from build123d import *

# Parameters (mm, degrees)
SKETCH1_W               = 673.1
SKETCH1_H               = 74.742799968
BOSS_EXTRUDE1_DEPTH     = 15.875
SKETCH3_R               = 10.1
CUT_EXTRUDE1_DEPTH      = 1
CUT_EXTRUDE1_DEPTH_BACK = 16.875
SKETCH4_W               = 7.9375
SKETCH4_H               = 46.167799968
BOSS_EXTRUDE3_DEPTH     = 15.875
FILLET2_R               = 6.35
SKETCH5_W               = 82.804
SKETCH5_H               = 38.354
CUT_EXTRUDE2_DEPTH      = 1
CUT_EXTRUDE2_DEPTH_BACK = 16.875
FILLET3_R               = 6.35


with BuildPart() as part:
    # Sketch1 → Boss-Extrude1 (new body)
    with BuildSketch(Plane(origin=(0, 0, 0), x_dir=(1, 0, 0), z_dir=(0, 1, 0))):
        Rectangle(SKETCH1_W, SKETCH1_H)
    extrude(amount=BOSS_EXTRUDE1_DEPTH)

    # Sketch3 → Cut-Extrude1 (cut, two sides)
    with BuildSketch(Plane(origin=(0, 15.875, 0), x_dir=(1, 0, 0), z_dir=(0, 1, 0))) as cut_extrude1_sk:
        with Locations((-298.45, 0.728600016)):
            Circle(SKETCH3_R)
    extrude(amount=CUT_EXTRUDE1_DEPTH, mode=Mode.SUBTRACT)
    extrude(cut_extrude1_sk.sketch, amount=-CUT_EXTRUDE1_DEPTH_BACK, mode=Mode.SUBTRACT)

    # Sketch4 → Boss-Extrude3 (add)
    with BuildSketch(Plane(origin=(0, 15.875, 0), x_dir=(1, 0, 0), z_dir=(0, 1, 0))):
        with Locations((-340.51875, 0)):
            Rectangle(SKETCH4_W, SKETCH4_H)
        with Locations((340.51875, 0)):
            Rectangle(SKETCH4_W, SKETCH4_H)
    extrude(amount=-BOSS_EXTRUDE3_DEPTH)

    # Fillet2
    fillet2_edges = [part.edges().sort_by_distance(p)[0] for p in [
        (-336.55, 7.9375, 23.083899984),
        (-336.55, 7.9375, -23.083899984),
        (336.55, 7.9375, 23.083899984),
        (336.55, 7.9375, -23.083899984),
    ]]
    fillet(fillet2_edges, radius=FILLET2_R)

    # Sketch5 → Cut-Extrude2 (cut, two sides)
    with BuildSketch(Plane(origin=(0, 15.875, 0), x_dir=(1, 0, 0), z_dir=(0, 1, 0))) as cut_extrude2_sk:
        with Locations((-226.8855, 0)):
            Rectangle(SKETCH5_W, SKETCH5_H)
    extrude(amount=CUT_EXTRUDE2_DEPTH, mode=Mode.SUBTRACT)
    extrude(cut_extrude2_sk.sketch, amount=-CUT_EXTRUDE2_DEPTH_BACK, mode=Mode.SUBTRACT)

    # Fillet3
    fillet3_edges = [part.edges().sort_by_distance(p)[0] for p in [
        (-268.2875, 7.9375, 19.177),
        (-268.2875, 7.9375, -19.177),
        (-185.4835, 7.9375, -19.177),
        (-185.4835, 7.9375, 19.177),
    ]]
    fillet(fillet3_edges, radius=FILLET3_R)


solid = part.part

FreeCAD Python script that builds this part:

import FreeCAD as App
import Part
import Sketcher
from FreeCAD import Vector
Q = App.Units.Quantity


def edges_at(feature, points):
    """Names of the edges that pass closest to the given points."""
    edges = feature.Shape.Edges
    near = lambda p: min(range(len(edges)), key=lambda i: edges[i].distToShape(Part.Vertex(*p))[0])
    return sorted({f"Edge{near(p) + 1}" for p in points})

doc = App.newDocument("Part")
params = doc.addObject("Spreadsheet::Sheet", "Params")
for row, (alias, value) in enumerate([
    ("sketch1_width", "26.5 in"),
    ("pad1_length", "0.625 in"),
    ("sketch3_width", "0.3125 in"),
    ("pad2_length", "0.625 in"),
    ("fillet_radius", "0.25 in"),
    ("sketch4_width", "3.26 in"),
    ("sketch4_height", "1.51 in"),
    ("fillet2_radius", "0.25 in"),
], start=1):
    params.set(f"A{row}", alias)
    params.set(f"B{row}", "=" + value)
    params.setAlias(f"B{row}", alias)

body = doc.addObject("PartDesign::Body", "Body")

# Sketch on XZ plane
sketch1 = body.newObject("Sketcher::SketchObject", "Sketch")
sketch1.AttachmentSupport = (doc.getObject("XZ_Plane"), [""])
sketch1.MapMode = "FlatFace"
sketch1.addGeometry([
    Part.LineSegment(Vector(-337, -37, 0), Vector(-337, 37, 0)),
    Part.LineSegment(Vector(-337, 37, 0), Vector(337, 37, 0)),
    Part.LineSegment(Vector(337, 37, 0), Vector(337, -37, 0)),
    Part.LineSegment(Vector(337, -37, 0), Vector(-337, -37, 0)),
], False)
sketch1.addConstraint([
    Sketcher.Constraint("Coincident", 0, 2, 1, 1),
    Sketcher.Constraint("Coincident", 1, 2, 2, 1),
    Sketcher.Constraint("Coincident", 2, 2, 3, 1),
    Sketcher.Constraint("Coincident", 3, 2, 0, 1),
    Sketcher.Constraint("Vertical", 0),
    Sketcher.Constraint("Horizontal", 1),
    Sketcher.Constraint("Vertical", 2),
    Sketcher.Constraint("Horizontal", 3),
    Sketcher.Constraint("Symmetric", 0, 2, 2, 2, -1, 1),
    Sketcher.Constraint("DistanceX", 1, 1, 1, 2, Q("26.5 in")),
    Sketcher.Constraint("DistanceY", 0, 1, 0, 2, Q("74.7428 mm")),
])
sketch1.setExpression("Constraints[9]", "Params.sketch1_width")
pad1 = body.newObject("PartDesign::Pad", "Pad")
pad1.Profile = sketch1
pad1.setExpression("Length", "Params.pad1_length")
pad1.Reversed = True

# Sketch on XZ plane
sketch2 = body.newObject("Sketcher::SketchObject", "Sketch001")
sketch2.AttachmentSupport = (doc.getObject("XZ_Plane"), [""])
sketch2.MapMode = "FlatFace"
sketch2.AttachmentOffset = App.Placement(Vector(0, 0, -0.625 * 25.4), App.Rotation())
sketch2.addGeometry(Part.Circle(Vector(-298, -1, 0), Vector(0, 0, 1), 10), False)
sketch2.addConstraint([
    Sketcher.Constraint("Diameter", 0, Q("20.2 mm")),
    Sketcher.Constraint("DistanceX", 0, 3, -1, 1, Q("11.75 in")),
    Sketcher.Constraint("DistanceY", 0, 3, -1, 1, Q("0.7286 mm")),
])
pocket1 = body.newObject("PartDesign::Pocket", "Pocket")
pocket1.Profile = sketch2
pocket1.Type = "ThroughAll"
pocket1.Midplane = True

# Sketch on XZ plane
sketch3 = body.newObject("Sketcher::SketchObject", "Sketch002")
sketch3.AttachmentSupport = (doc.getObject("XZ_Plane"), [""])
sketch3.MapMode = "FlatFace"
sketch3.AttachmentOffset = App.Placement(Vector(0, 0, -0.625 * 25.4), App.Rotation())
sketch3.addGeometry([
    Part.LineSegment(Vector(-344, -23, 0), Vector(-344, 23, 0)),  # 0
    Part.LineSegment(Vector(-344, 23, 0), Vector(-337, 23, 0)),  # 1
    Part.LineSegment(Vector(-337, 23, 0), Vector(-337, -23, 0)),  # 2
    Part.LineSegment(Vector(-337, -23, 0), Vector(-344, -23, 0)),  # 3
    Part.LineSegment(Vector(337, -23, 0), Vector(337, 23, 0)),  # 4
    Part.LineSegment(Vector(337, 23, 0), Vector(344, 23, 0)),  # 5
    Part.LineSegment(Vector(344, 23, 0), Vector(344, -23, 0)),  # 6
    Part.LineSegment(Vector(344, -23, 0), Vector(337, -23, 0)),  # 7
], False)
sketch3.addConstraint([
    Sketcher.Constraint("Coincident", 0, 2, 1, 1),
    Sketcher.Constraint("Coincident", 1, 2, 2, 1),
    Sketcher.Constraint("Coincident", 2, 2, 3, 1),
    Sketcher.Constraint("Coincident", 3, 2, 0, 1),
    Sketcher.Constraint("Coincident", 4, 2, 5, 1),
    Sketcher.Constraint("Coincident", 5, 2, 6, 1),
    Sketcher.Constraint("Coincident", 6, 2, 7, 1),
    Sketcher.Constraint("Coincident", 7, 2, 4, 1),
    Sketcher.Constraint("Vertical", 0),
    Sketcher.Constraint("Horizontal", 1),
    Sketcher.Constraint("Vertical", 2),
    Sketcher.Constraint("Horizontal", 3),
    Sketcher.Constraint("Vertical", 4),
    Sketcher.Constraint("Horizontal", 5),
    Sketcher.Constraint("Vertical", 6),
    Sketcher.Constraint("Horizontal", 7),
    Sketcher.Constraint("Symmetric", 2, 2, 4, 2, -1, 1),
    Sketcher.Constraint("Symmetric", 0, 2, 6, 2, -1, 1),
    Sketcher.Constraint("Horizontal", 1, 2, 4, 2),
    Sketcher.Constraint("DistanceX", 1, 2, 4, 2, Q("26.5 in")),
    Sketcher.Constraint("DistanceX", 1, 1, 1, 2, Q("0.3125 in")),
    Sketcher.Constraint("DistanceY", 0, 1, 0, 2, Q("46.1678 mm")),
])
sketch3.setExpression("Constraints[20]", "Params.sketch3_width")
pad2 = body.newObject("PartDesign::Pad", "Pad001")
pad2.Profile = sketch3
pad2.setExpression("Length", "Params.pad2_length")
doc.recompute()

fillet = body.newObject("PartDesign::Fillet", "Fillet")
fillet.Base = (pad2, edges_at(pad2, [
    (-336.55, 7.938, 23.084),
    (-336.55, 7.938, -23.084),
    (336.55, 7.938, 23.084),
    (336.55, 7.938, -23.084),
]))
fillet.setExpression("Radius", "Params.fillet_radius")

# Sketch on XZ plane
sketch4 = body.newObject("Sketcher::SketchObject", "Sketch003")
sketch4.AttachmentSupport = (doc.getObject("XZ_Plane"), [""])
sketch4.MapMode = "FlatFace"
sketch4.AttachmentOffset = App.Placement(Vector(0, 0, -0.625 * 25.4), App.Rotation())
sketch4.addGeometry([
    Part.LineSegment(Vector(-268, -19, 0), Vector(-268, 19, 0)),
    Part.LineSegment(Vector(-268, 19, 0), Vector(-185, 19, 0)),
    Part.LineSegment(Vector(-185, 19, 0), Vector(-185, -19, 0)),
    Part.LineSegment(Vector(-185, -19, 0), Vector(-268, -19, 0)),
], False)
sketch4.addConstraint([
    Sketcher.Constraint("Coincident", 0, 2, 1, 1),
    Sketcher.Constraint("Coincident", 1, 2, 2, 1),
    Sketcher.Constraint("Coincident", 2, 2, 3, 1),
    Sketcher.Constraint("Coincident", 3, 2, 0, 1),
    Sketcher.Constraint("Vertical", 0),
    Sketcher.Constraint("Horizontal", 1),
    Sketcher.Constraint("Vertical", 2),
    Sketcher.Constraint("Horizontal", 3),
    Sketcher.Constraint("DistanceX", 1, 1, 1, 2, Q("3.26 in")),
    Sketcher.Constraint("DistanceY", 0, 1, 0, 2, Q("1.51 in")),
    Sketcher.Constraint("DistanceX", 0, 2, -1, 1, Q("10.5625 in")),
    Sketcher.Constraint("DistanceY", -1, 1, 0, 2, Q("0.755 in")),
])
sketch4.setExpression("Constraints[8]", "Params.sketch4_width")
sketch4.setExpression("Constraints[9]", "Params.sketch4_height")
pocket2 = body.newObject("PartDesign::Pocket", "Pocket001")
pocket2.Profile = sketch4
pocket2.Type = "ThroughAll"
pocket2.Midplane = True
doc.recompute()

fillet2 = body.newObject("PartDesign::Fillet", "Fillet001")
fillet2.Base = (pocket2, edges_at(pocket2, [
    (-268.288, 7.938, 19.177),
    (-268.288, 7.938, -19.177),
    (-185.483, 7.938, -19.177),
    (-185.483, 7.938, 19.177),
]))
fillet2.setExpression("Radius", "Params.fillet2_radius")

doc.recompute()
